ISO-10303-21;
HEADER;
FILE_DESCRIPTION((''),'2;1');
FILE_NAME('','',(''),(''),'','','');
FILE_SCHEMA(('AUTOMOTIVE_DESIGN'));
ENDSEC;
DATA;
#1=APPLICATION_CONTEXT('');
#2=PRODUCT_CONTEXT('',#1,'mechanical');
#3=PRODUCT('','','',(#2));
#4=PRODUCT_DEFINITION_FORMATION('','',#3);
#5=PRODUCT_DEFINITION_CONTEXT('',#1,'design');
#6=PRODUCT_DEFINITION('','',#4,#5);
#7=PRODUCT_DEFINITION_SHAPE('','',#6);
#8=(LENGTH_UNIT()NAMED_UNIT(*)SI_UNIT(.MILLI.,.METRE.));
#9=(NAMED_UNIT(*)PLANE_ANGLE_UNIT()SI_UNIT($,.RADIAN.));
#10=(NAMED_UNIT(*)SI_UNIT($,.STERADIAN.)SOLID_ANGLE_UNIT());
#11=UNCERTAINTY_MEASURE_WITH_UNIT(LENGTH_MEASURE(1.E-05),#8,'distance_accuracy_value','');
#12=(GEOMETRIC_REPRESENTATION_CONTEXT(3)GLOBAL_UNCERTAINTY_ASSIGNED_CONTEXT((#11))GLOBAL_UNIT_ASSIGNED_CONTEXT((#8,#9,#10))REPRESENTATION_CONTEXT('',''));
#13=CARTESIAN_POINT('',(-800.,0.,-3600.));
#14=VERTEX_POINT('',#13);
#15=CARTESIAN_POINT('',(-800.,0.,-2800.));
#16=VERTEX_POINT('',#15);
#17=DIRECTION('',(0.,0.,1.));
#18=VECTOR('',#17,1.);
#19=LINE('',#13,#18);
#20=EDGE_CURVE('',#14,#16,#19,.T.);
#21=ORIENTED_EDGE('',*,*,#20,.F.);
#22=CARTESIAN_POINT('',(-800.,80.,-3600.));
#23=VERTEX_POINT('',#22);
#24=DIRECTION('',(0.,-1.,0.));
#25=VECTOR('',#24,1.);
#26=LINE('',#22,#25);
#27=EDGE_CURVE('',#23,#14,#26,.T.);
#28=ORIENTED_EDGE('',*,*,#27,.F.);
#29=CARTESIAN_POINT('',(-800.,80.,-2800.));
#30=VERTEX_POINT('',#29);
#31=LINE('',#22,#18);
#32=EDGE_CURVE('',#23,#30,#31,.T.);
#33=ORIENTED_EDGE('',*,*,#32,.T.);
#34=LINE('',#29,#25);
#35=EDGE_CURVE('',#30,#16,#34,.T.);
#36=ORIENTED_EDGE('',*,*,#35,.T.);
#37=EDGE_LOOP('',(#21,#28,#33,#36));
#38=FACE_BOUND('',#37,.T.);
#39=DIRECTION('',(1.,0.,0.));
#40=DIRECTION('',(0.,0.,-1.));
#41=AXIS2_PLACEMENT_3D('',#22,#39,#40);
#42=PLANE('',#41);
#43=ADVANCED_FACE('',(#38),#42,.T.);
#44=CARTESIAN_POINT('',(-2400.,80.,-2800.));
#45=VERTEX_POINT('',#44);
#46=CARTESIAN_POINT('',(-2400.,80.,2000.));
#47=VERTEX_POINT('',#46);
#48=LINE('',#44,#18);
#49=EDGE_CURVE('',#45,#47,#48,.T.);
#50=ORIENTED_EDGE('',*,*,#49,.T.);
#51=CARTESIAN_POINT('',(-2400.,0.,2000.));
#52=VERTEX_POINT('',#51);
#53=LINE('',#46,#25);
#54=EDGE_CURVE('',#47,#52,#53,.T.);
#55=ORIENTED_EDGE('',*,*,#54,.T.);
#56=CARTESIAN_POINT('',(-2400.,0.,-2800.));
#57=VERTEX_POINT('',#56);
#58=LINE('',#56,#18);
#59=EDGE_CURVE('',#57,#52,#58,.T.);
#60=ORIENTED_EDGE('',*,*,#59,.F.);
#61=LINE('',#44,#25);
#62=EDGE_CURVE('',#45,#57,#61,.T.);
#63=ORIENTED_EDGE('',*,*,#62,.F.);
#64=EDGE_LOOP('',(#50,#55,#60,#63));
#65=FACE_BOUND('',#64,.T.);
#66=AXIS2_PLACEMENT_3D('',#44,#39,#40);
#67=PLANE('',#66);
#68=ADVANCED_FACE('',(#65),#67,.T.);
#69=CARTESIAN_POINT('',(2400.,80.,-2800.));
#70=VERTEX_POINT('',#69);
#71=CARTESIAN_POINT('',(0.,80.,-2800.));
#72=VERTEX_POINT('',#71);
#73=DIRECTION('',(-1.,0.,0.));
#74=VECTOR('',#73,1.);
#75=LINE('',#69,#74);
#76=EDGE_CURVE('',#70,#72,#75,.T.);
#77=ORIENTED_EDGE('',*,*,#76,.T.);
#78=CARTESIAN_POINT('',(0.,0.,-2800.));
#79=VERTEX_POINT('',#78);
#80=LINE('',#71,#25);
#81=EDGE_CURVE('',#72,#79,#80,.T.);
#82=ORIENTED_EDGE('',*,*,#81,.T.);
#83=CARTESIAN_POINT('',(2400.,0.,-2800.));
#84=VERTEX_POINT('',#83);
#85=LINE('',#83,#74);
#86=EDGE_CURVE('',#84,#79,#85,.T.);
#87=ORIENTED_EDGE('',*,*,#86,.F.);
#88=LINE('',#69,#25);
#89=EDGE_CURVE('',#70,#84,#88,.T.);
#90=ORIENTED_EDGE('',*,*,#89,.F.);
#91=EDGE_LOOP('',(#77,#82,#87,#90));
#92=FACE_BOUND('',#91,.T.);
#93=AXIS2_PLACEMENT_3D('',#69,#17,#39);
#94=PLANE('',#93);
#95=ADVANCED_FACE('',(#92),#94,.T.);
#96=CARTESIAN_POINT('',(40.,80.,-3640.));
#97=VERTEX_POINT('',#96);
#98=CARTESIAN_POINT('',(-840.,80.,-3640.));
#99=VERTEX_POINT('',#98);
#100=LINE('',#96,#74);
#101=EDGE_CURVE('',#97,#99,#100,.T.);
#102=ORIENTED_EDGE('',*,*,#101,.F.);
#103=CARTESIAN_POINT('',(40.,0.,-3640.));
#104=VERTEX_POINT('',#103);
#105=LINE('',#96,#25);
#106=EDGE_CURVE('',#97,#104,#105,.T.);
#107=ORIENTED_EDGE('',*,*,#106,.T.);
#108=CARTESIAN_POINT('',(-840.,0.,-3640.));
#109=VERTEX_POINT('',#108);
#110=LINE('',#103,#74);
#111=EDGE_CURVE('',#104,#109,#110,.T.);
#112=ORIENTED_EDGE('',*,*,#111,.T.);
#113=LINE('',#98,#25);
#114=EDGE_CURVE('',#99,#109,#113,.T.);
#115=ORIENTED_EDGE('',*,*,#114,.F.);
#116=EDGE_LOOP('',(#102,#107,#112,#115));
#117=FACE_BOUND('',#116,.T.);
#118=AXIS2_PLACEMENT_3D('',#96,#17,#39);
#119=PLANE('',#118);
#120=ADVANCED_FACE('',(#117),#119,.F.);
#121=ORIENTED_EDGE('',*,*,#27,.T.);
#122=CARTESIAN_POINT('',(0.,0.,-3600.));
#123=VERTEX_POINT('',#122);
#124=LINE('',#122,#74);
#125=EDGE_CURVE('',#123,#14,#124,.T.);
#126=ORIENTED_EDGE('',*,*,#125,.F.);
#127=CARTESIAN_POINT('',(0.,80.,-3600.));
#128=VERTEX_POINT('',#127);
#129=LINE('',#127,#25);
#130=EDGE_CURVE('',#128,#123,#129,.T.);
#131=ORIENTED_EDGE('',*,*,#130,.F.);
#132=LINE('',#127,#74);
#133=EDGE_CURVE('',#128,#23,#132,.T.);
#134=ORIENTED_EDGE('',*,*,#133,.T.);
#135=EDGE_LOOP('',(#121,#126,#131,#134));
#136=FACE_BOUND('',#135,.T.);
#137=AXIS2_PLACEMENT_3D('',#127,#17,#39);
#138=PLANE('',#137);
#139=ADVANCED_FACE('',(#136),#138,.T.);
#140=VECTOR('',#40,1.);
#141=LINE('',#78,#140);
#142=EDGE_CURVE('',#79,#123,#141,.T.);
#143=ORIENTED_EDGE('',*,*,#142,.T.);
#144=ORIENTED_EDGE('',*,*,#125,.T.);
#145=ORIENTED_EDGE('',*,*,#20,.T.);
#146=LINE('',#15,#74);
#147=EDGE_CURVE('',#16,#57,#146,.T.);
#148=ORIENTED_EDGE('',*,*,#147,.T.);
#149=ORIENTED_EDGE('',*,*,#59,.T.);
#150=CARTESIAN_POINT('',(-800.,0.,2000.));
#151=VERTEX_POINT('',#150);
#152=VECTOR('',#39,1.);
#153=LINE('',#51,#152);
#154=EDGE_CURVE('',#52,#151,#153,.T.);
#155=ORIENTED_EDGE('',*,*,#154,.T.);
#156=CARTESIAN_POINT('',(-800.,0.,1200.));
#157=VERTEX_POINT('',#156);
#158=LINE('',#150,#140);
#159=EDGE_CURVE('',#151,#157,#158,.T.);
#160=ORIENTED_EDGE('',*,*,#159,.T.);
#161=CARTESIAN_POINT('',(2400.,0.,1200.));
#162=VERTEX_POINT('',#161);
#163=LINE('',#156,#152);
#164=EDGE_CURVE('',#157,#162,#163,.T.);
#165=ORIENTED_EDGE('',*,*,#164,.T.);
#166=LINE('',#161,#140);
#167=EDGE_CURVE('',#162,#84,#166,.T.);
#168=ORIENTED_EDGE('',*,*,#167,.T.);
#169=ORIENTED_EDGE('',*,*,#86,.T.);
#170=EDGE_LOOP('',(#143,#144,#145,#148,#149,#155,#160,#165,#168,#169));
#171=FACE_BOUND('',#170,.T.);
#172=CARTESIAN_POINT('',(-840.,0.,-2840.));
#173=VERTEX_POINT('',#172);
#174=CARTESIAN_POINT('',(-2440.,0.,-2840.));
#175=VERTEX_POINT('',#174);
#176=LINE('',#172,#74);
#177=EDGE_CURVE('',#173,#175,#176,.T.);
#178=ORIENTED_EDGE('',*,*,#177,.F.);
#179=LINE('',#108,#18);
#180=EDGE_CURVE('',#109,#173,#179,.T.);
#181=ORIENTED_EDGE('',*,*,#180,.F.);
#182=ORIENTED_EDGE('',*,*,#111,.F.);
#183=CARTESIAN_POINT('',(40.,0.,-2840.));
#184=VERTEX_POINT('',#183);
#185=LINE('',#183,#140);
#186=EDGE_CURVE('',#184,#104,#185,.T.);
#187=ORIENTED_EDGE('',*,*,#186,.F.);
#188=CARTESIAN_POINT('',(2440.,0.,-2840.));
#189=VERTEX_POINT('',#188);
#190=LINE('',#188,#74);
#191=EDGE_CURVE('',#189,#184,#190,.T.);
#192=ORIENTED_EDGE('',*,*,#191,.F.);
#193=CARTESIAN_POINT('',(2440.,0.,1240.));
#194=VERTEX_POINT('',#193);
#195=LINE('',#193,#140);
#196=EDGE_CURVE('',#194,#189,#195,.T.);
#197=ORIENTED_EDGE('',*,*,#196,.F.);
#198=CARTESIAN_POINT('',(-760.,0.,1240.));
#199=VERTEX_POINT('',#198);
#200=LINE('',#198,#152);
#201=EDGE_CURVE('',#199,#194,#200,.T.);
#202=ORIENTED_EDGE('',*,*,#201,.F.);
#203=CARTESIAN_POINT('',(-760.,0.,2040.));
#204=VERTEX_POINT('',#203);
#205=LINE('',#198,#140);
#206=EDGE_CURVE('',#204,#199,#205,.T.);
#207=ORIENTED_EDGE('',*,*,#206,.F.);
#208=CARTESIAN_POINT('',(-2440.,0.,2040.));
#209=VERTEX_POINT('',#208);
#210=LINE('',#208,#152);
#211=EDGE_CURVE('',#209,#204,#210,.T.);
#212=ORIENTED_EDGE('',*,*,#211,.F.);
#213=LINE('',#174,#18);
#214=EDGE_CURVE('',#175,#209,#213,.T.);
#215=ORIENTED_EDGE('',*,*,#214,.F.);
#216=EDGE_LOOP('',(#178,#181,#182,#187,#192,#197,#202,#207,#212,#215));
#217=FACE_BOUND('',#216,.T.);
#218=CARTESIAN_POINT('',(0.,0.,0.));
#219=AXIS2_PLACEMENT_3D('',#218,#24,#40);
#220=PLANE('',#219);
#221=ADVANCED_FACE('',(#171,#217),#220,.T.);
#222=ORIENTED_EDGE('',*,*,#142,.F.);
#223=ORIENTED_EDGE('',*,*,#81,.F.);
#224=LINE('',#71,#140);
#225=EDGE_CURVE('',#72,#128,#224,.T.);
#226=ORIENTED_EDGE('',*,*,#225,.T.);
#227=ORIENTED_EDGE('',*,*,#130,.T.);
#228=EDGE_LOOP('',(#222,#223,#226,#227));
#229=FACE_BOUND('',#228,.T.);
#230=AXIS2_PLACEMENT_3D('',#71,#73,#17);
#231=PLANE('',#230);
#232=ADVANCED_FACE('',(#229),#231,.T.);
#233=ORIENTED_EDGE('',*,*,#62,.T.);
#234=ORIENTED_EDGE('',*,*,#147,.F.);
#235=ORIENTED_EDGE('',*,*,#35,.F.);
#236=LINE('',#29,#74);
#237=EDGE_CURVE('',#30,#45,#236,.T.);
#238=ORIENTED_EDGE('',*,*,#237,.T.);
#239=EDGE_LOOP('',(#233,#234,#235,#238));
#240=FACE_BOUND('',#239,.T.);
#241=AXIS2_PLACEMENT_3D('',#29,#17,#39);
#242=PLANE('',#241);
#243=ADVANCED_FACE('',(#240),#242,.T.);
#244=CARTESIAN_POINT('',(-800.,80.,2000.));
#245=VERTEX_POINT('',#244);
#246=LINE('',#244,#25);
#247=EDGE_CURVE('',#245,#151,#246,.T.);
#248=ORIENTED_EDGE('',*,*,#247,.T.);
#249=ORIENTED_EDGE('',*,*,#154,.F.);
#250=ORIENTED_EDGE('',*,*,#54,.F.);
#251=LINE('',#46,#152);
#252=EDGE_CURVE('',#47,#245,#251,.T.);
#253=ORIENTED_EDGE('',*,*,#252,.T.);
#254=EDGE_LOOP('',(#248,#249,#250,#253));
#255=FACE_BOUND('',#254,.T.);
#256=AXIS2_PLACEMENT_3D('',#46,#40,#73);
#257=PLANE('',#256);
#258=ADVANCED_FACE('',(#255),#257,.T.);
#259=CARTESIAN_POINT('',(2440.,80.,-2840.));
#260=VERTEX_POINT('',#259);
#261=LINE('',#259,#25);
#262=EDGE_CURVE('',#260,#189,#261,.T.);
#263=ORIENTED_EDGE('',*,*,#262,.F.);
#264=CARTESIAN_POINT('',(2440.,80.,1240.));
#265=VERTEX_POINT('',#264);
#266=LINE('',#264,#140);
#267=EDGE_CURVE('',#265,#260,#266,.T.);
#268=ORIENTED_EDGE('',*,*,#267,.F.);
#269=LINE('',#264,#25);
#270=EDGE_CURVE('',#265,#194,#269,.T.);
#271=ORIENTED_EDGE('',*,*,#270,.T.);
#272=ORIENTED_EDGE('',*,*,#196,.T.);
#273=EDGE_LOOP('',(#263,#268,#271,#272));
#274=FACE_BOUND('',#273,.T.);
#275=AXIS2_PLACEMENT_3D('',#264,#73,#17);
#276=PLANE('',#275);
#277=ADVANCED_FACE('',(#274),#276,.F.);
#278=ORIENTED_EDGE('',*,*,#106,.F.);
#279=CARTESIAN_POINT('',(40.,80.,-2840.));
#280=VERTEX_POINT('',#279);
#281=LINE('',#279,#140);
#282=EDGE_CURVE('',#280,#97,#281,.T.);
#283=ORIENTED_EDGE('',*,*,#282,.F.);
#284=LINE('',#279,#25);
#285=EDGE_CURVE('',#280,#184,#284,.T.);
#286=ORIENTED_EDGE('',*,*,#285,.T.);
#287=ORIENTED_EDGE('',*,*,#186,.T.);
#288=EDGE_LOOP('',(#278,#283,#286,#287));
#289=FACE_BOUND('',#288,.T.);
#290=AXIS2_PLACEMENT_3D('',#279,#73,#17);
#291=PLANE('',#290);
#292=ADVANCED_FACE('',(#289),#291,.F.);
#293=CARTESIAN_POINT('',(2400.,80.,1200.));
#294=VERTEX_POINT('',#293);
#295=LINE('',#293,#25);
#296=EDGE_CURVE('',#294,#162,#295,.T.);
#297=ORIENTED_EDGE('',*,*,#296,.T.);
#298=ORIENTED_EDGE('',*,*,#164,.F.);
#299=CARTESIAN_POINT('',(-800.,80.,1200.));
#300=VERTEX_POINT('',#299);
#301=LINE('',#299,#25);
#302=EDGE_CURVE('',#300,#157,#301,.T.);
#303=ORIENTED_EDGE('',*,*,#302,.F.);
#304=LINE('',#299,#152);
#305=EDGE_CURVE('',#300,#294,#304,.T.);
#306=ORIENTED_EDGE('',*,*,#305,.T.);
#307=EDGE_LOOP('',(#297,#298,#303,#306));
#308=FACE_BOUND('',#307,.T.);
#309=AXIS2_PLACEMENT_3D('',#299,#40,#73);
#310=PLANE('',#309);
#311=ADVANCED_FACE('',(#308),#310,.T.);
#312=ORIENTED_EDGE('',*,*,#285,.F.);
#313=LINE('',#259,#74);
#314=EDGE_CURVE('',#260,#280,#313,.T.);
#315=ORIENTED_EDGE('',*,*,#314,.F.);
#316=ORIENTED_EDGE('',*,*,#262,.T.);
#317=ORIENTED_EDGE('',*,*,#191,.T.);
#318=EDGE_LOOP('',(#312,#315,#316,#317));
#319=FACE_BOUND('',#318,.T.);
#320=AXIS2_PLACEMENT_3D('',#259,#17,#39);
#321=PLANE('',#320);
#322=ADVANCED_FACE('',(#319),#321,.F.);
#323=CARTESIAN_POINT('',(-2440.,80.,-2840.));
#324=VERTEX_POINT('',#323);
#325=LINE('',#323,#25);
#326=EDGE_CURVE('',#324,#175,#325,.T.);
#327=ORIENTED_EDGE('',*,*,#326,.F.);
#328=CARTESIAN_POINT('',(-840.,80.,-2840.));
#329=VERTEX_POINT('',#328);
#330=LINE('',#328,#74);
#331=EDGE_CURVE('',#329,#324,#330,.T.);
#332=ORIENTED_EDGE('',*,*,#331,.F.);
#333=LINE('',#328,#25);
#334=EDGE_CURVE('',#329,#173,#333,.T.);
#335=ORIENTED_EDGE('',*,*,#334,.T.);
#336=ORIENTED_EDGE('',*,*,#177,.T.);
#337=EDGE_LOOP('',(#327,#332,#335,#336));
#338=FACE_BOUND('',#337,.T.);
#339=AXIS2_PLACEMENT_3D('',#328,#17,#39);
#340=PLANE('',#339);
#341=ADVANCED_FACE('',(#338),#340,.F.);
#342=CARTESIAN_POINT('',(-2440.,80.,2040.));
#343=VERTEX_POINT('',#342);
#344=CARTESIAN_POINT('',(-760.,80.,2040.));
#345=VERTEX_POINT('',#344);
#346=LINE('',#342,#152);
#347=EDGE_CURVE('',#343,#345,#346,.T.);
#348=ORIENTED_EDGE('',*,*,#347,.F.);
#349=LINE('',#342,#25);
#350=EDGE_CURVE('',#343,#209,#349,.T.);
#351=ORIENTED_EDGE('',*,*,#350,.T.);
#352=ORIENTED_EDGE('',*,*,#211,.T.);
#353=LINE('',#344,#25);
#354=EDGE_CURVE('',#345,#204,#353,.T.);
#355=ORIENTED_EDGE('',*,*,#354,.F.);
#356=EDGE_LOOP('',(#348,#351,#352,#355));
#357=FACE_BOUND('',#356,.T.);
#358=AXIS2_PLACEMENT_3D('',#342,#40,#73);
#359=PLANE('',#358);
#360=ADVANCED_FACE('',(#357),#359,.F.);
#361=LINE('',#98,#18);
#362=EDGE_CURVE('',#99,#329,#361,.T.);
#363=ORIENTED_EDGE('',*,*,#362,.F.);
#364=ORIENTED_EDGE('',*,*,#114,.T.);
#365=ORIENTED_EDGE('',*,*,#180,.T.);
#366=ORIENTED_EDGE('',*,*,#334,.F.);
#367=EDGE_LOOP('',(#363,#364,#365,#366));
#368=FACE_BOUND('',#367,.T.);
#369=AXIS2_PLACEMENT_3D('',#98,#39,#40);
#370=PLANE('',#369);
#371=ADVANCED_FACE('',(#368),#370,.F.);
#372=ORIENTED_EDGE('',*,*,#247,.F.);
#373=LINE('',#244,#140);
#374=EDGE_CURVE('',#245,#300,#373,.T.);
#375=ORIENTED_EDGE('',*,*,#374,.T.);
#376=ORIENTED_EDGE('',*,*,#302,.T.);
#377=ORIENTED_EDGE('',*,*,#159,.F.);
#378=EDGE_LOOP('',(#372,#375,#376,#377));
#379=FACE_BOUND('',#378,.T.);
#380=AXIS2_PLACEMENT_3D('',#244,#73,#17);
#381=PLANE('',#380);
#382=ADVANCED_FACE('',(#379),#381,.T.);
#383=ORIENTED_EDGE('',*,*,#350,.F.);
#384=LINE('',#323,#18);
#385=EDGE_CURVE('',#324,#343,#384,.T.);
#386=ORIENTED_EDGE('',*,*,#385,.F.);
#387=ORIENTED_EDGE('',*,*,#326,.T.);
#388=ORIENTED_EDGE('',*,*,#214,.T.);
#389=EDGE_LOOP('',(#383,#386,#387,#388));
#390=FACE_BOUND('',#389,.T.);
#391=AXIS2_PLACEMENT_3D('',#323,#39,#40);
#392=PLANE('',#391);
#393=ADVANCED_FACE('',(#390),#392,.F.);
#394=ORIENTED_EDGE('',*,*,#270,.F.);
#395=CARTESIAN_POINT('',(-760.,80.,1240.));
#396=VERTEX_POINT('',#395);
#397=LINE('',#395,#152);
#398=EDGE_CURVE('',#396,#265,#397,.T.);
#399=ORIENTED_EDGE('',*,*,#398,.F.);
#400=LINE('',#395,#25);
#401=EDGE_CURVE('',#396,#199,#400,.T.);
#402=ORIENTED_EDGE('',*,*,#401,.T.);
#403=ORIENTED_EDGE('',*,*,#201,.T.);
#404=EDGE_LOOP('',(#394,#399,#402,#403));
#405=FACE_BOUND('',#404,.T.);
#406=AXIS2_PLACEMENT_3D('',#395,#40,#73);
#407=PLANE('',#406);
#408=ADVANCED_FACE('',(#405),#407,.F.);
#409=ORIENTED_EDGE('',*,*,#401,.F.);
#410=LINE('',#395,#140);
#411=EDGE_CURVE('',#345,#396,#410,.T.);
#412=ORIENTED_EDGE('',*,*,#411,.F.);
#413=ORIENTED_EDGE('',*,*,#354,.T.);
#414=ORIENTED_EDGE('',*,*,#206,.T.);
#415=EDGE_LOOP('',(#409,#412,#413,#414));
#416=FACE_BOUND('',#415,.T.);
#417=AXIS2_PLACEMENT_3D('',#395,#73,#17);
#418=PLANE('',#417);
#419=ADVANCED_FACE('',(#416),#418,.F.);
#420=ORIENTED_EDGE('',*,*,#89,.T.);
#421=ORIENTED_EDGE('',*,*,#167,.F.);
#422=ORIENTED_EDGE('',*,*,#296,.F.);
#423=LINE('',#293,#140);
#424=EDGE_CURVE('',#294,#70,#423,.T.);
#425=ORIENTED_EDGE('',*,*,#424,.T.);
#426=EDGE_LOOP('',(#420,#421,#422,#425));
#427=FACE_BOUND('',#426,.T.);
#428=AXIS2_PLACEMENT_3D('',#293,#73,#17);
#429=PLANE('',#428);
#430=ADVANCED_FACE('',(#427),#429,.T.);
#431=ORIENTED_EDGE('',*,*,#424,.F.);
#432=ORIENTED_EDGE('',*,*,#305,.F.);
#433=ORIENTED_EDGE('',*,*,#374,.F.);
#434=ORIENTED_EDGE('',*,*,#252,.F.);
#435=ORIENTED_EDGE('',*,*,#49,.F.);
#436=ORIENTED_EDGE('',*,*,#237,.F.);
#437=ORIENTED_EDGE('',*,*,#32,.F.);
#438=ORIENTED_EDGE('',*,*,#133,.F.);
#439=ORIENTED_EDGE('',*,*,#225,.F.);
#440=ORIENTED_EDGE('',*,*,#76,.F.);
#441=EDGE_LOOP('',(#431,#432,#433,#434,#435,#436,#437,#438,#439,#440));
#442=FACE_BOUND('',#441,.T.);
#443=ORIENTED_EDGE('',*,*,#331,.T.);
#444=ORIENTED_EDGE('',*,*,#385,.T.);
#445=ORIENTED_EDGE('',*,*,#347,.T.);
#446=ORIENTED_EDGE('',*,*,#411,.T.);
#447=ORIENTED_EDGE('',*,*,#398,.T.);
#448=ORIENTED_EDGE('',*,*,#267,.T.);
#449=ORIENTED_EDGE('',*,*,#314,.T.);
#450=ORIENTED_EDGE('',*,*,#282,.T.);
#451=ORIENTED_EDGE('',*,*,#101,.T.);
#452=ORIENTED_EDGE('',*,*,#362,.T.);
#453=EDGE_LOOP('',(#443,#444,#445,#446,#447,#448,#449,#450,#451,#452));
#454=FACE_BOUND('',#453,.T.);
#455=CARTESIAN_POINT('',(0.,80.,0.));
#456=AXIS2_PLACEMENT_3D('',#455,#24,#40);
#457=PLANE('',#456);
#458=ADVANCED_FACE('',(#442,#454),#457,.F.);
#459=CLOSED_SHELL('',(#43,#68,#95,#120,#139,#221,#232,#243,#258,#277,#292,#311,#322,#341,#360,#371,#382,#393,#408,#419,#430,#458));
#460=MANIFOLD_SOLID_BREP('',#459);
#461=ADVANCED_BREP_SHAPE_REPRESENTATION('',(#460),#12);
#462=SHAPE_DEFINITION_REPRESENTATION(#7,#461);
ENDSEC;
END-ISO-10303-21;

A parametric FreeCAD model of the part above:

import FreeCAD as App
import Part
import Sketcher
from FreeCAD import Vector

doc = App.newDocument("Part")
body = doc.addObject("PartDesign::Body", "Body")

sketch1 = doc.addObject("Sketcher::SketchObject", "Sketch")
body.addObject(sketch1)
sketch1.AttachmentSupport = (doc.XZ_Plane, [""])
sketch1.MapMode = "FlatFace"
sketch1.addGeometry(Part.LineSegment(Vector(-840, -2840, 0), Vector(-2440, -2840, 0)), False)
sketch1.addGeometry(Part.LineSegment(Vector(-2440, -2840, 0), Vector(-2440, 2040, 0)), False)
sketch1.addGeometry(Part.LineSegment(Vector(-2440, 2040, 0), Vector(-760, 2040, 0)), False)
sketch1.addGeometry(Part.LineSegment(Vector(-760, 2040, 0), Vector(-760, 1240, 0)), False)
sketch1.addGeometry(Part.LineSegment(Vector(-760, 1240, 0), Vector(2440, 1240, 0)), False)
sketch1.addGeometry(Part.LineSegment(Vector(2440, 1240, 0), Vector(2440, -2840, 0)), False)
sketch1.addGeometry(Part.LineSegment(Vector(2440, -2840, 0), Vector(40, -2840, 0)), False)
sketch1.addGeometry(Part.LineSegment(Vector(40, -2840, 0), Vector(40, -3640, 0)), False)
sketch1.addGeometry(Part.LineSegment(Vector(40, -3640, 0), Vector(-840, -3640, 0)), False)
sketch1.addGeometry(Part.LineSegment(Vector(-840, -3640, 0), Vector(-840, -2840, 0)), False)
sketch1.addGeometry(Part.LineSegment(Vector(-2400, -2800, 0), Vector(-800, -2800, 0)), False)
sketch1.addGeometry(Part.LineSegment(Vector(-800, -2800, 0), Vector(-800, -3600, 0)), False)
sketch1.addGeometry(Part.LineSegment(Vector(-800, -3600, 0), Vector(0, -3600, 0)), False)
sketch1.addGeometry(Part.LineSegment(Vector(0, -3600, 0), Vector(0, -2800, 0)), False)
sketch1.addGeometry(Part.LineSegment(Vector(0, -2800, 0), Vector(2400, -2800, 0)), False)
sketch1.addGeometry(Part.LineSegment(Vector(2400, -2800, 0), Vector(2400, 1200, 0)), False)
sketch1.addGeometry(Part.LineSegment(Vector(2400, 1200, 0), Vector(-800, 1200, 0)), False)
sketch1.addGeometry(Part.LineSegment(Vector(-800, 1200, 0), Vector(-800, 2000, 0)), False)
sketch1.addGeometry(Part.LineSegment(Vector(-800, 2000, 0), Vector(-2400, 2000, 0)), False)
sketch1.addGeometry(Part.LineSegment(Vector(-2400, 2000, 0), Vector(-2400, -2800, 0)), False)
sketch1.addConstraint(Sketcher.Constraint("Coincident", 0, 2, 1, 1))
sketch1.addConstraint(Sketcher.Constraint("Coincident", 1, 2, 2, 1))
sketch1.addConstraint(Sketcher.Constraint("Coincident", 2, 2, 3, 1))
sketch1.addConstraint(Sketcher.Constraint("Coincident", 3, 2, 4, 1))
sketch1.addConstraint(Sketcher.Constraint("Coincident", 4, 2, 5, 1))
sketch1.addConstraint(Sketcher.Constraint("Coincident", 5, 2, 6, 1))
sketch1.addConstraint(Sketcher.Constraint("Coincident", 6, 2, 7, 1))
sketch1.addConstraint(Sketcher.Constraint("Coincident", 7, 2, 8, 1))
sketch1.addConstraint(Sketcher.Constraint("Coincident", 8, 2, 9, 1))
sketch1.addConstraint(Sketcher.Constraint("Coincident", 9, 2, 0, 1))
sketch1.addConstraint(Sketcher.Constraint("Coincident", 10, 2, 11, 1))
sketch1.addConstraint(Sketcher.Constraint("Coincident", 11, 2, 12, 1))
sketch1.addConstraint(Sketcher.Constraint("Coincident", 12, 2, 13, 1))
sketch1.addConstraint(Sketcher.Constraint("Coincident", 13, 2, 14, 1))
sketch1.addConstraint(Sketcher.Constraint("Coincident", 14, 2, 15, 1))
sketch1.addConstraint(Sketcher.Constraint("Coincident", 15, 2, 16, 1))
sketch1.addConstraint(Sketcher.Constraint("Coincident", 16, 2, 17, 1))
sketch1.addConstraint(Sketcher.Constraint("Coincident", 17, 2, 18, 1))
sketch1.addConstraint(Sketcher.Constraint("Coincident", 18, 2, 19, 1))
sketch1.addConstraint(Sketcher.Constraint("Coincident", 19, 2, 10, 1))
sketch1.addConstraint(Sketcher.Constraint("Horizontal", 0))
sketch1.addConstraint(Sketcher.Constraint("Vertical", 1))
sketch1.addConstraint(Sketcher.Constraint("Horizontal", 2))
sketch1.addConstraint(Sketcher.Constraint("Vertical", 3))
sketch1.addConstraint(Sketcher.Constraint("Horizontal", 4))
sketch1.addConstraint(Sketcher.Constraint("Vertical", 5))
sketch1.addConstraint(Sketcher.Constraint("Horizontal", 6))
sketch1.addConstraint(Sketcher.Constraint("Vertical", 7))
sketch1.addConstraint(Sketcher.Constraint("Horizontal", 8))
sketch1.addConstraint(Sketcher.Constraint("Vertical", 9))
sketch1.addConstraint(Sketcher.Constraint("Horizontal", 10))
sketch1.addConstraint(Sketcher.Constraint("Vertical", 11))
sketch1.addConstraint(Sketcher.Constraint("Horizontal", 12))
sketch1.addConstraint(Sketcher.Constraint("Vertical", 13))
sketch1.addConstraint(Sketcher.Constraint("Horizontal", 14))
sketch1.addConstraint(Sketcher.Constraint("Vertical", 15))
sketch1.addConstraint(Sketcher.Constraint("Horizontal", 16))
sketch1.addConstraint(Sketcher.Constraint("Vertical", 17))
sketch1.addConstraint(Sketcher.Constraint("Horizontal", 18))
sketch1.addConstraint(Sketcher.Constraint("Vertical", 19))
sketch1.addConstraint(Sketcher.Constraint("Symmetric", 0, 2, 5, 2, -2))
sketch1.addConstraint(Sketcher.Constraint("Symmetric", 14, 2, 19, 2, -2))
sketch1.addConstraint(Sketcher.Constraint("PointOnObject", 12, 2, -2))
sketch1.addConstraint(Sketcher.Constraint("Vertical", 11, 2, 16, 2))
sketch1.addConstraint(Sketcher.Constraint("Equal", 0, 10))
sketch1.addConstraint(Sketcher.Constraint("Equal", 6, 14))
sketch1.addConstraint(Sketcher.Constraint("Equal", 4, 16))
sketch1.addConstraint(Sketcher.Constraint("Equal", 12, 3))
sketch1.addConstraint(Sketcher.Constraint("Equal", 3, 7))
sketch1.addConstraint(Sketcher.Constraint("Equal", 9, 11))
sketch1.addConstraint(Sketcher.Constraint("Equal", 13, 17))
sketch1.addConstraint(Sketcher.Constraint("DistanceX", 0, 2, 0, 1, 1600.0))
sketch1.addConstraint(Sketcher.Constraint("DistanceX", 2, 1, 2, 2, 1680.0))
sketch1.addConstraint(Sketcher.Constraint("DistanceX", 4, 1, 4, 2, 3200.0))
sketch1.addConstraint(Sketcher.Constraint("DistanceY", 1, 1, 1, 2, 4880.0))
sketch1.addConstraint(Sketcher.Constraint("DistanceY", 15, 1, 15, 2, 4000.0))
sketch1.addConstraint(Sketcher.Constraint("DistanceY", 0, 2, -1, 1, 2840.0))
sketch1.addConstraint(Sketcher.Constraint("DistanceY", 10, 2, -1, 1, 2800.0))
pad1 = doc.addObject("PartDesign::Pad", "Pad")
body.addObject(pad1)
pad1.Profile = sketch1
pad1.Length = 80
pad1.Reversed = True

doc.recompute()
